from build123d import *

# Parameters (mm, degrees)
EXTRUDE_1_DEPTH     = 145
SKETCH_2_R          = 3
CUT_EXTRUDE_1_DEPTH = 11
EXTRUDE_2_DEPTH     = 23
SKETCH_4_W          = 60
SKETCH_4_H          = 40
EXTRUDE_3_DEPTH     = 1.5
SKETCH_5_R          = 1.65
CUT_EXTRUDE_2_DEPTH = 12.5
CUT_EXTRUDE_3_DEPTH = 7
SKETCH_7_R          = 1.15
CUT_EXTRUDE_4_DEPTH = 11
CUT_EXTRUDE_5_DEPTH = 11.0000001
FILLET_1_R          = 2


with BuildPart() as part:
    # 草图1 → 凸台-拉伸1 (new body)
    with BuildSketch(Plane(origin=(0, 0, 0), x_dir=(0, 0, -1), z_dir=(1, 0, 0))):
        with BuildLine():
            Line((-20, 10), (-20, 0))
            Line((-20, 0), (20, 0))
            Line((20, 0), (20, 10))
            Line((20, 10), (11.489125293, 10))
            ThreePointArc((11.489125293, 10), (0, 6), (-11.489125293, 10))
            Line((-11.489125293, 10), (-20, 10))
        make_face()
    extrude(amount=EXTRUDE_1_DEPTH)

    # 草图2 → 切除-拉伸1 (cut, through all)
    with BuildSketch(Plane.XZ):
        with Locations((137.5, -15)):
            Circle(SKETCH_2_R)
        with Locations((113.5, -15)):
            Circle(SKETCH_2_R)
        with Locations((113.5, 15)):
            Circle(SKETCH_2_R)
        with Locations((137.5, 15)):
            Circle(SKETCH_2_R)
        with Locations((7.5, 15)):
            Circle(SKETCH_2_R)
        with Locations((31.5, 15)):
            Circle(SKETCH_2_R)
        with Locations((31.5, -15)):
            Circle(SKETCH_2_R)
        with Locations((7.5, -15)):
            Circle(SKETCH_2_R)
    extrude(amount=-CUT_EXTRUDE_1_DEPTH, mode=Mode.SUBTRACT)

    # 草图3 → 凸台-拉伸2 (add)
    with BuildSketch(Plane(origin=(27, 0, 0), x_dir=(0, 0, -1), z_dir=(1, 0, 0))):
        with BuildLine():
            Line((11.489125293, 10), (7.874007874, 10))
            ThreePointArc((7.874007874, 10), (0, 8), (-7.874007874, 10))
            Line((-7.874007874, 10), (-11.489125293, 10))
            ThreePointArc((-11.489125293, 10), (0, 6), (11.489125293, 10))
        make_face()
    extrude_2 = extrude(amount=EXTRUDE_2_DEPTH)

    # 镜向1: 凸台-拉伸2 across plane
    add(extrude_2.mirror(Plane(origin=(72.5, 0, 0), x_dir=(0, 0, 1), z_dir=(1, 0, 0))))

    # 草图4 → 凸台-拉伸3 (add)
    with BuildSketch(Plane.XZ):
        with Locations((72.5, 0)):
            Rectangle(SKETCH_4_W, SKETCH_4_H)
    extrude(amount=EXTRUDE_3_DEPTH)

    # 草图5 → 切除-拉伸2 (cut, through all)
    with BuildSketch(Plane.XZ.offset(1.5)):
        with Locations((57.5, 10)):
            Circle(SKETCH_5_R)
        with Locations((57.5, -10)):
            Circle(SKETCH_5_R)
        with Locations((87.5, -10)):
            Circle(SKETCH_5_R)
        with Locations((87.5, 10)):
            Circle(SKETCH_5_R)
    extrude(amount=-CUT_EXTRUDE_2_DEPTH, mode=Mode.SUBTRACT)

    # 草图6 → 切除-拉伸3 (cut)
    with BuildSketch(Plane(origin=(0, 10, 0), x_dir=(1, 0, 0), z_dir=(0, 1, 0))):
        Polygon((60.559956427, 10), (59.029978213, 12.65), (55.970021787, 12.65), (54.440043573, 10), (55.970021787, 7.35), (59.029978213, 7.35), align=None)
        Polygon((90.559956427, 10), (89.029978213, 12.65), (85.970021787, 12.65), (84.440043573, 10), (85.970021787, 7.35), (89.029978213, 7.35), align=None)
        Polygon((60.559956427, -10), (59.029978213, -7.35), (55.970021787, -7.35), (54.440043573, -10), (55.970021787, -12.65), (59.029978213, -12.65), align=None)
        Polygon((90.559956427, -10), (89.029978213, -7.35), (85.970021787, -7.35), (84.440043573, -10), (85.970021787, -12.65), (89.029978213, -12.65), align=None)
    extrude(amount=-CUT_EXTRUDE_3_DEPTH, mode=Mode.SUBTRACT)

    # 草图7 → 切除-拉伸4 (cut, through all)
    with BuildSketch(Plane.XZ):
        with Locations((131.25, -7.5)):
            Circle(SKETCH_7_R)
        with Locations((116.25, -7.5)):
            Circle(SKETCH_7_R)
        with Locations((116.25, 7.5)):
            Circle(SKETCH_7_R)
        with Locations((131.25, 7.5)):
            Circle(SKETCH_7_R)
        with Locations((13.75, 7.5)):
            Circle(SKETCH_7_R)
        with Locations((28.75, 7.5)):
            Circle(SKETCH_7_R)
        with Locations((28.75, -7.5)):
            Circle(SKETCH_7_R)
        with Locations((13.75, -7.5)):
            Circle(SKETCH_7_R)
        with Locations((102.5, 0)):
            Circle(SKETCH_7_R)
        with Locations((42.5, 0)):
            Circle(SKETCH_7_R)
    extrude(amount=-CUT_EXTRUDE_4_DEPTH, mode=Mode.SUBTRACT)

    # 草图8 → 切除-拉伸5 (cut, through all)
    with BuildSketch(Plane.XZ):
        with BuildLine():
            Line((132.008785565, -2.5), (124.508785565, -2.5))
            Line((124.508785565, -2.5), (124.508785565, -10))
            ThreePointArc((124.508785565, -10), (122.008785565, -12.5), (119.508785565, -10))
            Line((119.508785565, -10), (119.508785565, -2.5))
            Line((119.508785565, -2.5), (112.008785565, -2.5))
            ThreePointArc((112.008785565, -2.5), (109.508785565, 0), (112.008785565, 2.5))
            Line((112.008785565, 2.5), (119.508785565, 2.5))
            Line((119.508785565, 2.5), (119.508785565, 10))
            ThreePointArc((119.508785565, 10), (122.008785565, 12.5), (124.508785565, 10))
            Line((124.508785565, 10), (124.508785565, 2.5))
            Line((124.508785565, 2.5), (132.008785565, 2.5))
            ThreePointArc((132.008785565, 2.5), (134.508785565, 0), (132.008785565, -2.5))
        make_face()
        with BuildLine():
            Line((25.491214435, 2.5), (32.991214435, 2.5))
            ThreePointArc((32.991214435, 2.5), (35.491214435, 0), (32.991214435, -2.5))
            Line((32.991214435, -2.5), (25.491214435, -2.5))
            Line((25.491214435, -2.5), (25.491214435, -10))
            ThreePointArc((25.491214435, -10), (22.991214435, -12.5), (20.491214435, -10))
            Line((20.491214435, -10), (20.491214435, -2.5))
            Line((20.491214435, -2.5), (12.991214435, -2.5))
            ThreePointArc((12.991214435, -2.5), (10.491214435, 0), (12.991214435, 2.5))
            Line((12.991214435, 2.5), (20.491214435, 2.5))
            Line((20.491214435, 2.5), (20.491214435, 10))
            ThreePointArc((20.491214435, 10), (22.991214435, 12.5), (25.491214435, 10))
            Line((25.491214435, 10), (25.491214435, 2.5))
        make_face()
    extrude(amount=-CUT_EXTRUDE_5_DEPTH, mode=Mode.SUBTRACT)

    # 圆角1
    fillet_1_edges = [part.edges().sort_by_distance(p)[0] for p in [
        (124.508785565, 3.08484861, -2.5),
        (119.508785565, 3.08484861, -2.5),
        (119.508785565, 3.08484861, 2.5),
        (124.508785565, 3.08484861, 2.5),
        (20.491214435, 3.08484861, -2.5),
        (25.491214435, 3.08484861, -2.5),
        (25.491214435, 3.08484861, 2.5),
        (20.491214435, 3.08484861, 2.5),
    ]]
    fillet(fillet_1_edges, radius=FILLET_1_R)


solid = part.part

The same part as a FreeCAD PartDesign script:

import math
import FreeCAD as App
import Part
import Sketcher

V = App.Vector
Q = App.Units.Quantity


def edges_at(feature, points):
    """Names of the edges that pass closest to the given points."""
    edges = feature.Shape.Edges
    near = lambda p: min(range(len(edges)), key=lambda i: edges[i].distToShape(Part.Vertex(*p))[0])
    return sorted({f"Edge{near(p) + 1}" for p in points})


def add_polygon(sketch, points):
    """Adds a closed chain of lines whose ends are joined by coincident constraints."""
    first, n = sketch.GeometryCount, len(points)
    for a, b in zip(points, points[1:] + points[:1]):
        sketch.addGeometry(Part.LineSegment(App.Vector(*a, 0), App.Vector(*b, 0)), False)
    for i in range(n):
        sketch.addConstraint(Sketcher.Constraint("Coincident", first + i, 2, first + (i + 1) % n, 1))

doc = App.newDocument("Part")
params = doc.addObject("Spreadsheet::Sheet", "Params")
for row, (alias, value) in enumerate([
    ("sketch1_radius", "18.5 mm"),
    ("sketch1_width", "10 mm"),
    ("sketch1_height", "40 mm"),
    ("pad1_length", "145 mm"),
    ("sketch2_diameter", "6 mm"),
    ("sketch3_radius", "16.5 mm"),
    ("sketch3_radius2", "18.5 mm"),
    ("pad2_length", "23 mm"),
    ("sketch4_width", "60 mm"),
    ("sketch4_height", "40 mm"),
    ("pad3_length", "1.5 mm"),
    ("sketch5_diameter", "3.3 mm"),
    ("pocket3_length", "7 mm"),
    ("sketch7_diameter", "2.3 mm"),
    ("sketch8_radius", "2.5 mm"),
    ("sketch8_width", "7.5 mm"),
    ("fillet_radius", "2 mm"),
], start=1):
    params.set(f"A{row}", alias)
    params.set(f"B{row}", "=" + value)
    params.setAlias(f"B{row}", alias)

body = doc.addObject("PartDesign::Body", "Body")

# Sketch on YZ plane
sketch1 = body.newObject("Sketcher::SketchObject", "Sketch")
sketch1.AttachmentSupport = (doc.getObject("YZ_Plane"), [""])
sketch1.MapMode = "FlatFace"
sketch1.addGeometry([
    Part.LineSegment(V(10, 20, 0), V(0, 20, 0)),  # 0
    Part.LineSegment(V(0, 20, 0), V(0, -20, 0)),  # 1
    Part.LineSegment(V(0, -20, 0), V(10, -20, 0)),  # 2
    Part.LineSegment(V(10, -20, 0), V(10, -11, 0)),  # 3
    Part.ArcOfCircle(Part.Circle(V(24, 0, 0), V(0, 0, 1), 18), math.radians(142), math.radians(218)),  # 4
    Part.LineSegment(V(10, 11, 0), V(10, 20, 0)),  # 5
], False)
sketch1.addConstraint([
    Sketcher.Constraint("Coincident", 0, 2, 1, 1),
    Sketcher.Constraint("Coincident", 1, 2, 2, 1),
    Sketcher.Constraint("Coincident", 2, 2, 3, 1),
    Sketcher.Constraint("Coincident", 3, 2, 4, 2),
    Sketcher.Constraint("Coincident", 4, 1, 5, 1),
    Sketcher.Constraint("Coincident", 5, 2, 0, 1),
    Sketcher.Constraint("Horizontal", 0),
    Sketcher.Constraint("Vertical", 1),
    Sketcher.Constraint("Horizontal", 2),
    Sketcher.Constraint("Vertical", 3),
    Sketcher.Constraint("Vertical", 5),
    Sketcher.Constraint("Symmetric", 0, 2, 1, 2, -1, 1),
    Sketcher.Constraint("Symmetric", 3, 2, 4, 1, -1),
    Sketcher.Constraint("Radius", 4, 18.5),
    Sketcher.Constraint("DistanceX", 0, 2, 0, 1, 10.0),
    Sketcher.Constraint("DistanceY", 1, 2, 1, 1, 40.0),
    Sketcher.Constraint("DistanceX", -1, 1, 4, 3, 24.5),
])
sketch1.setExpression("Constraints[13]", "Params.sketch1_radius")
sketch1.setExpression("Constraints[14]", "Params.sketch1_width")
sketch1.setExpression("Constraints[15]", "Params.sketch1_height")
pad1 = body.newObject("PartDesign::Pad", "Pad")
pad1.Profile = sketch1
pad1.setExpression("Length", "Params.pad1_length")

# Sketch on XZ plane
sketch2 = body.newObject("Sketcher::SketchObject", "Sketch001")
sketch2.AttachmentSupport = (doc.getObject("XZ_Plane"), [""])
sketch2.MapMode = "FlatFace"
sketch2.addGeometry([
    Part.Circle(V(137.5, -15, 0), V(0, 0, 1), 3),  # 0
    Part.Circle(V(113.5, -15, 0), V(0, 0, 1), 3),  # 1
    Part.Circle(V(113.5, 15, 0), V(0, 0, 1), 3),  # 2
    Part.Circle(V(137.5, 15, 0), V(0, 0, 1), 3),  # 3
    Part.Circle(V(7.5, 15, 0), V(0, 0, 1), 3),  # 4
    Part.Circle(V(31.5, 15, 0), V(0, 0, 1), 3),  # 5
    Part.Circle(V(31.5, -15, 0), V(0, 0, 1), 3),  # 6
    Part.Circle(V(7.5, -15, 0), V(0, 0, 1), 3),  # 7
], False)
sketch2.addConstraint([
    Sketcher.Constraint("Equal", 0, 1),
    Sketcher.Constraint("Equal", 1, 2),
    Sketcher.Constraint("Equal", 2, 3),
    Sketcher.Constraint("Equal", 3, 4),
    Sketcher.Constraint("Equal", 4, 5),
    Sketcher.Constraint("Equal", 5, 6),
    Sketcher.Constraint("Equal", 6, 7),
    Sketcher.Constraint("Symmetric", 1, 3, 2, 3, -1),
    Sketcher.Constraint("Symmetric", 0, 3, 3, 3, -1),
    Sketcher.Constraint("Symmetric", 5, 3, 6, 3, -1),
    Sketcher.Constraint("Symmetric", 4, 3, 7, 3, -1),
    Sketcher.Constraint("Horizontal", 0, 3, 1, 3),
    Sketcher.Constraint("Horizontal", 3, 3, 4, 3),
    Sketcher.Constraint("Horizontal", 4, 3, 5, 3),
    Sketcher.Constraint("Diameter", 0, 6.0),
    Sketcher.Constraint("DistanceY", 0, 3, -1, 1, 15.0),
    Sketcher.Constraint("DistanceX", 1, 3, 0, 3, 24.0),
    Sketcher.Constraint("DistanceX", 4, 3, 2, 3, 106.0),
    Sketcher.Constraint("DistanceX", 4, 3, 5, 3, 24.0),
    Sketcher.Constraint("DistanceX", -1, 1, 0, 3, 137.5),
])
sketch2.setExpression("Constraints[14]", "Params.sketch2_diameter")
pocket1 = body.newObject("PartDesign::Pocket", "Pocket")
pocket1.Profile = sketch2
pocket1.Type = "ThroughAll"

# Sketch on YZ plane
sketch3 = body.newObject("Sketcher::SketchObject", "Sketch002")
sketch3.AttachmentSupport = (doc.getObject("YZ_Plane"), [""])
sketch3.MapMode = "FlatFace"
sketch3.AttachmentOffset = App.Placement(V(0, 0, 27), App.Rotation())
sketch3.addGeometry([
    Part.LineSegment(V(10, -11.5, 0), V(10, -7.9, 0)),
    Part.ArcOfCircle(Part.Circle(V(24.5, 0, 0), V(0, 0, 1), 16.5), math.radians(151), math.radians(209)),
    Part.LineSegment(V(10, 7.9, 0), V(10, 11.5, 0)),
    Part.ArcOfCircle(Part.Circle(V(24.5, 0, 0), V(0, 0, 1), 18.5), math.radians(142), math.radians(218)),
], False)
sketch3.addConstraint([
    Sketcher.Constraint("Coincident", 0, 2, 1, 2),
    Sketcher.Constraint("Coincident", 1, 1, 2, 1),
    Sketcher.Constraint("Coincident", 2, 2, 3, 1),
    Sketcher.Constraint("Coincident", 3, 2, 0, 1),
    Sketcher.Constraint("Vertical", 0),
    Sketcher.Constraint("Vertical", 2),
    Sketcher.Constraint("Coincident", 3, 3, 1, 3),
    Sketcher.Constraint("Symmetric", 0, 2, 1, 1, -1),
    Sketcher.Constraint("Radius", 1, 16.5),
    Sketcher.Constraint("Radius", 3, 18.5),
    Sketcher.Constraint("DistanceX", -1, 1, 0, 2, 10.0),
    Sketcher.Constraint("DistanceX", -1, 1, 1, 3, 24.5),
])
sketch3.setExpression("Constraints[8]", "Params.sketch3_radius")
sketch3.setExpression("Constraints[9]", "Params.sketch3_radius2")
pad2 = body.newObject("PartDesign::Pad", "Pad001")
pad2.Profile = sketch3
pad2.setExpression("Length", "Params.pad2_length")
doc.recompute()

datumplane = body.newObject("PartDesign::Plane", "DatumPlane")
datumplane.AttachmentSupport = (doc.getObject("YZ_Plane"), [""])
datumplane.MapMode = "FlatFace"
datumplane.AttachmentOffset = App.Placement(V(0, 0, 72.5), App.Rotation())
mirrored = body.newObject("PartDesign::Mirrored", "Mirrored")
mirrored.Originals = [pad2]
mirrored.MirrorPlane = (datumplane, [""])
body.Tip = mirrored

# Sketch on XZ plane
sketch4 = body.newObject("Sketcher::SketchObject", "Sketch003")
sketch4.AttachmentSupport = (doc.getObject("XZ_Plane"), [""])
sketch4.MapMode = "FlatFace"
add_polygon(sketch4, [(42, 20), (42, -20), (102, -20), (102, 20)])  # lines 0-3
sketch4.addConstraint([
    Sketcher.Constraint("Vertical", 0),
    Sketcher.Constraint("Horizontal", 1),
    Sketcher.Constraint("Vertical", 2),
    Sketcher.Constraint("Horizontal", 3),
    Sketcher.Constraint("DistanceX", 1, 1, 1, 2, 60.0),
    Sketcher.Constraint("DistanceY", 0, 2, 0, 1, 40.0),
    Sketcher.Constraint("DistanceY", 0, 2, -1, 1, 20.0),
    Sketcher.Constraint("DistanceX", -1, 1, 0, 2, 42.5),
])
sketch4.setExpression("Constraints[8]", "Params.sketch4_width")
sketch4.setExpression("Constraints[9]", "Params.sketch4_height")
pad3 = body.newObject("PartDesign::Pad", "Pad002")
pad3.Profile = sketch4
pad3.setExpression("Length", "Params.pad3_length")

# Sketch on XZ plane
sketch5 = body.newObject("Sketcher::SketchObject", "Sketch004")
sketch5.AttachmentSupport = (doc.getObject("XZ_Plane"), [""])
sketch5.MapMode = "FlatFace"
sketch5.AttachmentOffset = App.Placement(V(0, 0, 1.5), App.Rotation())
sketch5.addGeometry([
    Part.Circle(V(57.5, 10, 0), V(0, 0, 1), 1.6),
    Part.Circle(V(57.5, -10, 0), V(0, 0, 1), 1.6),
    Part.Circle(V(87.5, -10, 0), V(0, 0, 1), 1.6),
    Part.Circle(V(87.5, 10, 0), V(0, 0, 1), 1.6),
], False)
sketch5.addConstraint([
    Sketcher.Constraint("Equal", 0, 1),
    Sketcher.Constraint("Equal", 1, 2),
    Sketcher.Constraint("Equal", 2, 3),
    Sketcher.Constraint("Symmetric", 0, 3, 1, 3, -1),
    Sketcher.Constraint("Symmetric", 2, 3, 3, 3, -1),
    Sketcher.Constraint("Horizontal", 1, 3, 2, 3),
    Sketcher.Constraint("Diameter", 0, 3.3),
    Sketcher.Constraint("DistanceY", -1, 1, 0, 3, 10.0),
    Sketcher.Constraint("DistanceX", 1, 3, 2, 3, 30.0),
    Sketcher.Constraint("DistanceX", -1, 1, 0, 3, 57.5),
])
sketch5.setExpression("Constraints[6]", "Params.sketch5_diameter")
pocket2 = body.newObject("PartDesign::Pocket", "Pocket001")
pocket2.Profile = sketch5
pocket2.Type = "ThroughAll"

# Sketch on XZ plane
sketch6 = body.newObject("Sketcher::SketchObject", "Sketch005")
sketch6.AttachmentSupport = (doc.getObject("XZ_Plane"), [""])
sketch6.MapMode = "FlatFace"
sketch6.AttachmentOffset = App.Placement(V(0, 0, -10), App.Rotation())
add_polygon(sketch6, [(60.6, -10), (59, -12.7), (56, -12.7), (54.4, -10), (56, -7.3), (59, -7.3)])  # lines 0-5
add_polygon(sketch6, [(90.6, -10), (89, -12.7), (86, -12.7), (84.4, -10), (86, -7.3), (89, -7.3)])  # lines 6-11
add_polygon(sketch6, [(60.6, 10), (59, 7.3), (56, 7.3), (54.4, 10), (56, 12.7), (59, 12.7)])  # lines 12-17
add_polygon(sketch6, [(90.6, 10), (89, 7.3), (86, 7.3), (84.4, 10), (86, 12.7), (89, 12.7)])  # lines 18-23
sketch6.addConstraint([
    Sketcher.Constraint("Horizontal", 1),
    Sketcher.Constraint("Horizontal", 4),
    Sketcher.Constraint("Horizontal", 7),
    Sketcher.Constraint("Horizontal", 10),
    Sketcher.Constraint("Horizontal", 13),
    Sketcher.Constraint("Horizontal", 16),
    Sketcher.Constraint("Horizontal", 19),
    Sketcher.Constraint("Horizontal", 22),
    Sketcher.Constraint("Symmetric", 4, 2, 12, 2, -1),
    Sketcher.Constraint("Symmetric", 2, 2, 14, 2, -1),
    Sketcher.Constraint("Symmetric", 1, 2, 15, 2, -1),
    Sketcher.Constraint("Symmetric", 5, 2, 17, 2, -1),
    Sketcher.Constraint("Symmetric", 10, 2, 18, 2, -1),
    Sketcher.Constraint("Symmetric", 8, 2, 20, 2, -1),
    Sketcher.Constraint("Symmetric", 7, 2, 21, 2, -1),
    Sketcher.Constraint("Symmetric", 11, 2, 23, 2, -1),
    Sketcher.Constraint("Parallel", 0, 3),
    Sketcher.Constraint("Parallel", 2, 5),
    Sketcher.Constraint("Parallel", 3, 6),
    Sketcher.Constraint("Parallel", 5, 8),
    Sketcher.Constraint("Parallel", 6, 9),
    Sketcher.Constraint("Parallel", 8, 11),
    Sketcher.Constraint("Parallel", 9, 12),
    Sketcher.Constraint("Parallel", 11, 14),
    Sketcher.Constraint("Parallel", 14, 17),
    Sketcher.Constraint("Parallel", 17, 20),
    Sketcher.Constraint("Parallel", 20, 23),
    Sketcher.Constraint("Horizontal", 2, 2, 5, 2),
    Sketcher.Constraint("Horizontal", 1, 2, 6, 2),
    Sketcher.Constraint("Horizontal", 5, 2, 8, 2),
    Sketcher.Constraint("Horizontal", 4, 2, 9, 2),
    Sketcher.Constraint("Horizontal", 8, 2, 11, 2),
    Sketcher.Constraint("Vertical", 1, 2, 3, 2),
    Sketcher.Constraint("Equal", 4, 7),
    Sketcher.Constraint("Angle", 0, Q("-120 deg")),
    Sketcher.Constraint("DistanceY", 2, 2, -1, 1, 10.0),
    Sketcher.Constraint("DistanceX", 0, 2, 6, 2, 30.0),
    Sketcher.Constraint("DistanceY", 1, 2, 3, 2, 5.3),
    Sketcher.Constraint("DistanceX", 1, 2, 1, 1, 3.059956),
    Sketcher.Constraint("DistanceX", -1, 1, 0, 2, 59.029978),
])
pocket3 = body.newObject("PartDesign::Pocket", "Pocket002")
pocket3.Profile = sketch6
pocket3.setExpression("Length", "Params.pocket3_length")
pocket3.Reversed = True

# Sketch on XZ plane
sketch7 = body.newObject("Sketcher::SketchObject", "Sketch006")
sketch7.AttachmentSupport = (doc.getObject("XZ_Plane"), [""])
sketch7.MapMode = "FlatFace"
sketch7.addGeometry([
    Part.Circle(V(131.2, -7.5, 0), V(0, 0, 1), 1.1),  # 0
    Part.Circle(V(116.2, -7.5, 0), V(0, 0, 1), 1.1),  # 1
    Part.Circle(V(116.2, 7.5, 0), V(0, 0, 1), 1.1),  # 2
    Part.Circle(V(131.2, 7.5, 0), V(0, 0, 1), 1.1),  # 3
    Part.Circle(V(13.8, 7.5, 0), V(0, 0, 1), 1.1),  # 4
    Part.Circle(V(28.8, 7.5, 0), V(0, 0, 1), 1.1),  # 5
    Part.Circle(V(28.8, -7.5, 0), V(0, 0, 1), 1.1),  # 6
    Part.Circle(V(13.8, -7.5, 0), V(0, 0, 1), 1.1),  # 7
    Part.Circle(V(102.5, 0, 0), V(0, 0, 1), 1.1),  # 8
    Part.Circle(V(42.5, 0, 0), V(0, 0, 1), 1.1),  # 9
], False)
sketch7.addConstraint([
    Sketcher.Constraint("Equal", 0, 1),
    Sketcher.Constraint("Equal", 1, 2),
    Sketcher.Constraint("Equal", 2, 3),
    Sketcher.Constraint("Equal", 3, 4),
    Sketcher.Constraint("Equal", 4, 5),
    Sketcher.Constraint("Equal", 5, 6),
    Sketcher.Constraint("Equal", 6, 7),
    Sketcher.Constraint("Equal", 7, 8),
    Sketcher.Constraint("Equal", 8, 9),
    Sketcher.Constraint("Symmetric", 1, 3, 2, 3, -1),
    Sketcher.Constraint("Symmetric", 0, 3, 3, 3, -1),
    Sketcher.Constraint("Symmetric", 5, 3, 6, 3, -1),
    Sketcher.Constraint("Symmetric", 4, 3, 7, 3, -1),
    Sketcher.Constraint("PointOnObject", 8, 3, -1),
    Sketcher.Constraint("PointOnObject", 9, 3, -1),
    Sketcher.Constraint("Horizontal", 0, 3, 1, 3),
    Sketcher.Constraint("Horizontal", 3, 3, 4, 3),
    Sketcher.Constraint("Horizontal", 4, 3, 5, 3),
    Sketcher.Constraint("Diameter", 0, 2.3),
    Sketcher.Constraint("DistanceX", 1, 3, 0, 3, 15.0),
    Sketcher.Constraint("DistanceY", 1, 3, 2, 3, 15.0),
    Sketcher.Constraint("DistanceX", 4, 3, 5, 3, 15.0),
    Sketcher.Constraint("DistanceX", 9, 3, 8, 3, 60.0),
    Sketcher.Constraint("DistanceX", -1, 1, 8, 3, 102.5),
    Sketcher.Constraint("DistanceX", 4, 3, 2, 3, 102.5),
    Sketcher.Constraint("DistanceX", -1, 1, 0, 3, 131.25),
])
sketch7.setExpression("Constraints[18]", "Params.sketch7_diameter")
pocket4 = body.newObject("PartDesign::Pocket", "Pocket003")
pocket4.Profile = sketch7
pocket4.Type = "ThroughAll"

# Sketch on XZ plane
sketch8 = body.newObject("Sketcher::SketchObject", "Sketch007")
sketch8.AttachmentSupport = (doc.getObject("XZ_Plane"), [""])
sketch8.MapMode = "FlatFace"
sketch8.addGeometry([
    Part.LineSegment(V(124.5, -2.5, 0), V(132, -2.5, 0)),  # 0
    Part.ArcOfCircle(Part.Circle(V(132, 0, 0), V(0, 0, 1), 2.5), math.radians(-90), math.radians(90)),  # 1
    Part.LineSegment(V(132, 2.5, 0), V(124.5, 2.5, 0)),  # 2
    Part.LineSegment(V(124.5, 2.5, 0), V(124.5, 10, 0)),  # 3
    Part.ArcOfCircle(Part.Circle(V(122, 10, 0), V(0, 0, 1), 2.5), math.radians(0), math.radians(180)),  # 4
    Part.LineSegment(V(119.5, 10, 0), V(119.5, 2.5, 0)),  # 5
    Part.LineSegment(V(119.5, 2.5, 0), V(112, 2.5, 0)),  # 6
    Part.ArcOfCircle(Part.Circle(V(112, 0, 0), V(0, 0, 1), 2.5), math.radians(90), math.radians(270)),  # 7
    Part.LineSegment(V(112, -2.5, 0), V(119.5, -2.5, 0)),  # 8
    Part.LineSegment(V(119.5, -2.5, 0), V(119.5, -10, 0)),  # 9
    Part.ArcOfCircle(Part.Circle(V(122, -10, 0), V(0, 0, 1), 2.5), math.radians(180), math.radians(360)),  # 10
    Part.LineSegment(V(124.5, -10, 0), V(124.5, -2.5, 0)),  # 11
    Part.LineSegment(V(33, 2.5, 0), V(25.5, 2.5, 0)),  # 12
    Part.LineSegment(V(25.5, 2.5, 0), V(25.5, 10, 0)),  # 13
    Part.ArcOfCircle(Part.Circle(V(23, 10, 0), V(0, 0, 1), 2.5), math.radians(0), math.radians(180)),  # 14
    Part.LineSegment(V(20.5, 10, 0), V(20.5, 2.5, 0)),  # 15
    Part.LineSegment(V(20.5, 2.5, 0), V(13, 2.5, 0)),  # 16
    Part.ArcOfCircle(Part.Circle(V(13, 0, 0), V(0, 0, 1), 2.5), math.radians(90), math.radians(270)),  # 17
    Part.LineSegment(V(13, -2.5, 0), V(20.5, -2.5, 0)),  # 18
    Part.LineSegment(V(20.5, -2.5, 0), V(20.5, -10, 0)),  # 19
    Part.ArcOfCircle(Part.Circle(V(23, -10, 0), V(0, 0, 1), 2.5), math.radians(180), math.radians(360)),  # 20
    Part.LineSegment(V(25.5, -10, 0), V(25.5, -2.5, 0)),  # 21
    Part.LineSegment(V(25.5, -2.5, 0), V(33, -2.5, 0)),  # 22
    Part.ArcOfCircle(Part.Circle(V(33, 0, 0), V(0, 0, 1), 2.5), math.radians(-90), math.radians(90)),  # 23
], False)
sketch8.addConstraint([
    Sketcher.Constraint("Tangent", 0, 2, 1, 1),
    Sketcher.Constraint("Tangent", 1, 2, 2, 1),
    Sketcher.Constraint("Coincident", 2, 2, 3, 1),
    Sketcher.Constraint("Tangent", 3, 2, 4, 1),
    Sketcher.Constraint("Tangent", 4, 2, 5, 1),
    Sketcher.Constraint("Coincident", 5, 2, 6, 1),
    Sketcher.Constraint("Tangent", 6, 2, 7, 1),
    Sketcher.Constraint("Tangent", 7, 2, 8, 1),
    Sketcher.Constraint("Coincident", 8, 2, 9, 1),
    Sketcher.Constraint("Tangent", 9, 2, 10, 1),
    Sketcher.Constraint("Tangent", 10, 2, 11, 1),
    Sketcher.Constraint("Coincident", 11, 2, 0, 1),
    Sketcher.Constraint("Coincident", 12, 2, 13, 1),
    Sketcher.Constraint("Tangent", 13, 2, 14, 1),
    Sketcher.Constraint("Tangent", 14, 2, 15, 1),
    Sketcher.Constraint("Coincident", 15, 2, 16, 1),
    Sketcher.Constraint("Tangent", 16, 2, 17, 1),
    Sketcher.Constraint("Tangent", 17, 2, 18, 1),
    Sketcher.Constraint("Coincident", 18, 2, 19, 1),
    Sketcher.Constraint("Tangent", 19, 2, 20, 1),
    Sketcher.Constraint("Tangent", 20, 2, 21, 1),
    Sketcher.Constraint("Coincident", 21, 2, 22, 1),
    Sketcher.Constraint("Tangent", 22, 2, 23, 1),
    Sketcher.Constraint("Tangent", 23, 2, 12, 1),
    Sketcher.Constraint("Horizontal", 0),
    Sketcher.Constraint("Horizontal", 2),
    Sketcher.Constraint("Vertical", 3),
    Sketcher.Constraint("Vertical", 5),
    Sketcher.Constraint("Horizontal", 6),
    Sketcher.Constraint("Horizontal", 8),
    Sketcher.Constraint("Vertical", 9),
    Sketcher.Constraint("Vertical", 11),
    Sketcher.Constraint("Horizontal", 12),
    Sketcher.Constraint("Vertical", 13),
    Sketcher.Constraint("Vertical", 15),
    Sketcher.Constraint("Horizontal", 16),
    Sketcher.Constraint("Horizontal", 18),
    Sketcher.Constraint("Vertical", 19),
    Sketcher.Constraint("Vertical", 21),
    Sketcher.Constraint("Horizontal", 22),
    Sketcher.Constraint("Equal", 1, 4),
    Sketcher.Constraint("Equal", 4, 7),
    Sketcher.Constraint("Equal", 7, 10),
    Sketcher.Constraint("Equal", 10, 14),
    Sketcher.Constraint("Equal", 14, 17),
    Sketcher.Constraint("Equal", 17, 20),
    Sketcher.Constraint("Equal", 20, 23),
    Sketcher.Constraint("Symmetric", 4, 3, 10, 3, -1),
    Sketcher.Constraint("Symmetric", 14, 3, 20, 3, -1),
    Sketcher.Constraint("PointOnObject", 1, 3, -1),
    Sketcher.Constraint("PointOnObject", 7, 3, -1),
    Sketcher.Constraint("PointOnObject", 17, 3, -1),
    Sketcher.Constraint("PointOnObject", 23, 3, -1),
    Sketcher.Constraint("Horizontal", 4, 3, 14, 3),
    Sketcher.Constraint("Equal", 2, 6),
    Sketcher.Constraint("Equal", 8, 12),
    Sketcher.Constraint("Equal", 12, 16),
    Sketcher.Constraint("Equal", 22, 3),
    Sketcher.Constraint("Radius", 1, 2.5),
    Sketcher.Constraint("DistanceX", 0, 1, 0, 2, 7.5),
    Sketcher.Constraint("DistanceX", 14, 3, 7, 3, 89.017571),
    Sketcher.Constraint("DistanceX", -1, 1, 1, 3, 132.008786),
])
sketch8.setExpression("Constraints[58]", "Params.sketch8_radius")
sketch8.setExpression("Constraints[59]", "Params.sketch8_width")
pocket5 = body.newObject("PartDesign::Pocket", "Pocket004")
pocket5.Profile = sketch8
pocket5.Type = "ThroughAll"
doc.recompute()

fillet = body.newObject("PartDesign::Fillet", "Fillet")
fillet.Base = (pocket5, edges_at(pocket5, [
    (124.509, 3.085, -2.5),
    (119.509, 3.085, -2.5),
    (119.509, 3.085, 2.5),
    (124.509, 3.085, 2.5),
    (20.491, 3.085, -2.5),
    (25.491, 3.085, -2.5),
    (25.491, 3.085, 2.5),
    (20.491, 3.085, 2.5),
]))
fillet.setExpression("Radius", "Params.fillet_radius")

doc.recompute()
